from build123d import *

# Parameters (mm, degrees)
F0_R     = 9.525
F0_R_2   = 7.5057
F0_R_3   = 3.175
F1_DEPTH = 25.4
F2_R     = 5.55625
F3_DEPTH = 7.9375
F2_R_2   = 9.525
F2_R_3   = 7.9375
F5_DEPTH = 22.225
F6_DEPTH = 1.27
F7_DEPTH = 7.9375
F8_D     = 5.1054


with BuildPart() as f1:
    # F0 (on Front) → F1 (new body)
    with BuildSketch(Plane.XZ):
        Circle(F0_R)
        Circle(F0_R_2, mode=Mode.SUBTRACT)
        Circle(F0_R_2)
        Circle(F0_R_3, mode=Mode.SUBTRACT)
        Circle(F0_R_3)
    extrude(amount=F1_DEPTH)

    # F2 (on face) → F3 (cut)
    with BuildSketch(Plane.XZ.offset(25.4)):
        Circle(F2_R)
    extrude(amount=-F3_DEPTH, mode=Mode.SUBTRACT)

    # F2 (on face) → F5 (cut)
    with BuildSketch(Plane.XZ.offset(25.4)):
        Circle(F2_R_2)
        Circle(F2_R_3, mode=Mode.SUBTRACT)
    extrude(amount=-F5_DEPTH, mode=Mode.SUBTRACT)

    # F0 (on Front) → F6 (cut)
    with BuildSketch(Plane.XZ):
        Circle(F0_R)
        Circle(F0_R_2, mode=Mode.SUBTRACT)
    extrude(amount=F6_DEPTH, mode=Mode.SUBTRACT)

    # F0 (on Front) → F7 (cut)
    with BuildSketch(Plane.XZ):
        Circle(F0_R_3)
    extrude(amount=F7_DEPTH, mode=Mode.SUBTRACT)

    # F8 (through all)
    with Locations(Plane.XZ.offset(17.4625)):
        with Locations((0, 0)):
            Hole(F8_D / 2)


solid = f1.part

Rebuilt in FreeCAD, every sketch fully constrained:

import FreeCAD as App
import Part
import Sketcher

V = App.Vector
Q = App.Units.Quantity

doc = App.newDocument("Part")
params = doc.addObject("Spreadsheet::Sheet", "Params")
for row, (alias, value) in enumerate([
    ("sketch1_diameter", "0.75 in"),
    ("pad1_length", "1 in"),
    ("sketch2_diameter", "0.4375 in"),
    ("pocket1_length", "0.3125 in"),
    ("sketch3_diameter", "0.75 in"),
    ("sketch3_diameter2", "0.625 in"),
    ("pocket2_length", "0.875 in"),
    ("sketch4_diameter", "0.75 in"),
    ("sketch4_diameter2", "0.591 in"),
    ("pocket3_length", "0.05 in"),
    ("sketch5_diameter", "0.25 in"),
    ("pocket4_length", "0.3125 in"),
    ("sketch6_diameter", "0.201 in"),
    ("hole_diameter", "0.201 in"),
], start=1):
    params.set(f"A{row}", alias)
    params.set(f"B{row}", "=" + value)
    params.setAlias(f"B{row}", alias)

body = doc.addObject("PartDesign::Body", "Body")

# Sketch on XZ plane
sketch1 = doc.addObject("Sketcher::SketchObject", "Sketch")
body.addObject(sketch1)
sketch1.AttachmentSupport = (doc.XZ_Plane, [""])
sketch1.MapMode = "FlatFace"
sketch1.addGeometry(Part.Circle(V(0, 0, 0), V(0, 0, 1), 9.525), False)
sketch1.addConstraint([
    Sketcher.Constraint("Coincident", 0, 3, -1, 1),
    Sketcher.Constraint("Diameter", 0, Q("0.75 in")),
])
sketch1.setExpression("Constraints[1]", "Params.sketch1_diameter")
pad1 = doc.addObject("PartDesign::Pad", "Pad")
body.addObject(pad1)
pad1.Profile = sketch1
pad1.setExpression("Length", "Params.pad1_length")

# Sketch on XZ plane
sketch2 = doc.addObject("Sketcher::SketchObject", "Sketch001")
body.addObject(sketch2)
sketch2.AttachmentSupport = (doc.XZ_Plane, [""])
sketch2.MapMode = "FlatFace"
sketch2.AttachmentOffset = App.Placement(V(0, 0, 1 * 25.4), App.Rotation())
sketch2.addGeometry(Part.Circle(V(0, 0, 0), V(0, 0, 1), 5.55625), False)
sketch2.addConstraint([
    Sketcher.Constraint("Coincident", 0, 3, -1, 1),
    Sketcher.Constraint("Diameter", 0, Q("0.4375 in")),
])
sketch2.setExpression("Constraints[1]", "Params.sketch2_diameter")
pocket1 = doc.addObject("PartDesign::Pocket", "Pocket")
body.addObject(pocket1)
pocket1.Profile = sketch2
pocket1.setExpression("Length", "Params.pocket1_length")

# Sketch on XZ plane
sketch3 = doc.addObject("Sketcher::SketchObject", "Sketch002")
body.addObject(sketch3)
sketch3.AttachmentSupport = (doc.XZ_Plane, [""])
sketch3.MapMode = "FlatFace"
sketch3.AttachmentOffset = App.Placement(V(0, 0, 1 * 25.4), App.Rotation())
sketch3.addGeometry([
    Part.Circle(V(0, 0, 0), V(0, 0, 1), 9.525),
    Part.Circle(V(0, 0, 0), V(0, 0, 1), 7.9375),
], False)
sketch3.addConstraint([
    Sketcher.Constraint("Coincident", 0, 3, -1, 1),
    Sketcher.Constraint("Coincident", 1, 3, -1, 1),
    Sketcher.Constraint("Diameter", 0, Q("0.75 in")),
    Sketcher.Constraint("Diameter", 1, Q("0.625 in")),
])
sketch3.setExpression("Constraints[2]", "Params.sketch3_diameter")
sketch3.setExpression("Constraints[3]", "Params.sketch3_diameter2")
pocket2 = doc.addObject("PartDesign::Pocket", "Pocket001")
body.addObject(pocket2)
pocket2.Profile = sketch3
pocket2.setExpression("Length", "Params.pocket2_length")

# Sketch on XZ plane
sketch4 = doc.addObject("Sketcher::SketchObject", "Sketch003")
body.addObject(sketch4)
sketch4.AttachmentSupport = (doc.XZ_Plane, [""])
sketch4.MapMode = "FlatFace"
sketch4.addGeometry([
    Part.Circle(V(0, 0, 0), V(0, 0, 1), 9.525),
    Part.Circle(V(0, 0, 0), V(0, 0, 1), 7.5057),
], False)
sketch4.addConstraint([
    Sketcher.Constraint("Coincident", 0, 3, -1, 1),
    Sketcher.Constraint("Coincident", 1, 3, -1, 1),
    Sketcher.Constraint("Diameter", 0, Q("0.75 in")),
    Sketcher.Constraint("Diameter", 1, Q("0.591 in")),
])
sketch4.setExpression("Constraints[2]", "Params.sketch4_diameter")
sketch4.setExpression("Constraints[3]", "Params.sketch4_diameter2")
pocket3 = doc.addObject("PartDesign::Pocket", "Pocket002")
body.addObject(pocket3)
pocket3.Profile = sketch4
pocket3.setExpression("Length", "Params.pocket3_length")
pocket3.Reversed = True

# Sketch on XZ plane
sketch5 = doc.addObject("Sketcher::SketchObject", "Sketch004")
body.addObject(sketch5)
sketch5.AttachmentSupport = (doc.XZ_Plane, [""])
sketch5.MapMode = "FlatFace"
sketch5.addGeometry(Part.Circle(V(0, 0, 0), V(0, 0, 1), 3.175), False)
sketch5.addConstraint([
    Sketcher.Constraint("Coincident", 0, 3, -1, 1),
    Sketcher.Constraint("Diameter", 0, Q("0.25 in")),
])
sketch5.setExpression("Constraints[1]", "Params.sketch5_diameter")
pocket4 = doc.addObject("PartDesign::Pocket", "Pocket003")
body.addObject(pocket4)
pocket4.Profile = sketch5
pocket4.setExpression("Length", "Params.pocket4_length")
pocket4.Reversed = True

# Sketch on XZ plane
sketch6 = doc.addObject("Sketcher::SketchObject", "Sketch005")
body.addObject(sketch6)
sketch6.AttachmentSupport = (doc.XZ_Plane, [""])
sketch6.MapMode = "FlatFace"
sketch6.AttachmentOffset = App.Placement(V(0, 0, 0.6875 * 25.4), App.Rotation())
sketch6.addGeometry(Part.Circle(V(0, 0, 0), V(0, 0, 1), 2.5527), False)
sketch6.addConstraint([
    Sketcher.Constraint("Coincident", 0, 3, -1, 1),
    Sketcher.Constraint("Diameter", 0, Q("0.201 in")),
])
sketch6.setExpression("Constraints[1]", "Params.sketch6_diameter")
doc.recompute()
hole = doc.addObject("PartDesign::Hole", "Hole")
body.addObject(hole)
hole.Profile = sketch6
hole.ThreadType = "None"
hole.setExpression("Diameter", "Params.hole_diameter")
hole.DepthType = "ThroughAll"

doc.recompute()
